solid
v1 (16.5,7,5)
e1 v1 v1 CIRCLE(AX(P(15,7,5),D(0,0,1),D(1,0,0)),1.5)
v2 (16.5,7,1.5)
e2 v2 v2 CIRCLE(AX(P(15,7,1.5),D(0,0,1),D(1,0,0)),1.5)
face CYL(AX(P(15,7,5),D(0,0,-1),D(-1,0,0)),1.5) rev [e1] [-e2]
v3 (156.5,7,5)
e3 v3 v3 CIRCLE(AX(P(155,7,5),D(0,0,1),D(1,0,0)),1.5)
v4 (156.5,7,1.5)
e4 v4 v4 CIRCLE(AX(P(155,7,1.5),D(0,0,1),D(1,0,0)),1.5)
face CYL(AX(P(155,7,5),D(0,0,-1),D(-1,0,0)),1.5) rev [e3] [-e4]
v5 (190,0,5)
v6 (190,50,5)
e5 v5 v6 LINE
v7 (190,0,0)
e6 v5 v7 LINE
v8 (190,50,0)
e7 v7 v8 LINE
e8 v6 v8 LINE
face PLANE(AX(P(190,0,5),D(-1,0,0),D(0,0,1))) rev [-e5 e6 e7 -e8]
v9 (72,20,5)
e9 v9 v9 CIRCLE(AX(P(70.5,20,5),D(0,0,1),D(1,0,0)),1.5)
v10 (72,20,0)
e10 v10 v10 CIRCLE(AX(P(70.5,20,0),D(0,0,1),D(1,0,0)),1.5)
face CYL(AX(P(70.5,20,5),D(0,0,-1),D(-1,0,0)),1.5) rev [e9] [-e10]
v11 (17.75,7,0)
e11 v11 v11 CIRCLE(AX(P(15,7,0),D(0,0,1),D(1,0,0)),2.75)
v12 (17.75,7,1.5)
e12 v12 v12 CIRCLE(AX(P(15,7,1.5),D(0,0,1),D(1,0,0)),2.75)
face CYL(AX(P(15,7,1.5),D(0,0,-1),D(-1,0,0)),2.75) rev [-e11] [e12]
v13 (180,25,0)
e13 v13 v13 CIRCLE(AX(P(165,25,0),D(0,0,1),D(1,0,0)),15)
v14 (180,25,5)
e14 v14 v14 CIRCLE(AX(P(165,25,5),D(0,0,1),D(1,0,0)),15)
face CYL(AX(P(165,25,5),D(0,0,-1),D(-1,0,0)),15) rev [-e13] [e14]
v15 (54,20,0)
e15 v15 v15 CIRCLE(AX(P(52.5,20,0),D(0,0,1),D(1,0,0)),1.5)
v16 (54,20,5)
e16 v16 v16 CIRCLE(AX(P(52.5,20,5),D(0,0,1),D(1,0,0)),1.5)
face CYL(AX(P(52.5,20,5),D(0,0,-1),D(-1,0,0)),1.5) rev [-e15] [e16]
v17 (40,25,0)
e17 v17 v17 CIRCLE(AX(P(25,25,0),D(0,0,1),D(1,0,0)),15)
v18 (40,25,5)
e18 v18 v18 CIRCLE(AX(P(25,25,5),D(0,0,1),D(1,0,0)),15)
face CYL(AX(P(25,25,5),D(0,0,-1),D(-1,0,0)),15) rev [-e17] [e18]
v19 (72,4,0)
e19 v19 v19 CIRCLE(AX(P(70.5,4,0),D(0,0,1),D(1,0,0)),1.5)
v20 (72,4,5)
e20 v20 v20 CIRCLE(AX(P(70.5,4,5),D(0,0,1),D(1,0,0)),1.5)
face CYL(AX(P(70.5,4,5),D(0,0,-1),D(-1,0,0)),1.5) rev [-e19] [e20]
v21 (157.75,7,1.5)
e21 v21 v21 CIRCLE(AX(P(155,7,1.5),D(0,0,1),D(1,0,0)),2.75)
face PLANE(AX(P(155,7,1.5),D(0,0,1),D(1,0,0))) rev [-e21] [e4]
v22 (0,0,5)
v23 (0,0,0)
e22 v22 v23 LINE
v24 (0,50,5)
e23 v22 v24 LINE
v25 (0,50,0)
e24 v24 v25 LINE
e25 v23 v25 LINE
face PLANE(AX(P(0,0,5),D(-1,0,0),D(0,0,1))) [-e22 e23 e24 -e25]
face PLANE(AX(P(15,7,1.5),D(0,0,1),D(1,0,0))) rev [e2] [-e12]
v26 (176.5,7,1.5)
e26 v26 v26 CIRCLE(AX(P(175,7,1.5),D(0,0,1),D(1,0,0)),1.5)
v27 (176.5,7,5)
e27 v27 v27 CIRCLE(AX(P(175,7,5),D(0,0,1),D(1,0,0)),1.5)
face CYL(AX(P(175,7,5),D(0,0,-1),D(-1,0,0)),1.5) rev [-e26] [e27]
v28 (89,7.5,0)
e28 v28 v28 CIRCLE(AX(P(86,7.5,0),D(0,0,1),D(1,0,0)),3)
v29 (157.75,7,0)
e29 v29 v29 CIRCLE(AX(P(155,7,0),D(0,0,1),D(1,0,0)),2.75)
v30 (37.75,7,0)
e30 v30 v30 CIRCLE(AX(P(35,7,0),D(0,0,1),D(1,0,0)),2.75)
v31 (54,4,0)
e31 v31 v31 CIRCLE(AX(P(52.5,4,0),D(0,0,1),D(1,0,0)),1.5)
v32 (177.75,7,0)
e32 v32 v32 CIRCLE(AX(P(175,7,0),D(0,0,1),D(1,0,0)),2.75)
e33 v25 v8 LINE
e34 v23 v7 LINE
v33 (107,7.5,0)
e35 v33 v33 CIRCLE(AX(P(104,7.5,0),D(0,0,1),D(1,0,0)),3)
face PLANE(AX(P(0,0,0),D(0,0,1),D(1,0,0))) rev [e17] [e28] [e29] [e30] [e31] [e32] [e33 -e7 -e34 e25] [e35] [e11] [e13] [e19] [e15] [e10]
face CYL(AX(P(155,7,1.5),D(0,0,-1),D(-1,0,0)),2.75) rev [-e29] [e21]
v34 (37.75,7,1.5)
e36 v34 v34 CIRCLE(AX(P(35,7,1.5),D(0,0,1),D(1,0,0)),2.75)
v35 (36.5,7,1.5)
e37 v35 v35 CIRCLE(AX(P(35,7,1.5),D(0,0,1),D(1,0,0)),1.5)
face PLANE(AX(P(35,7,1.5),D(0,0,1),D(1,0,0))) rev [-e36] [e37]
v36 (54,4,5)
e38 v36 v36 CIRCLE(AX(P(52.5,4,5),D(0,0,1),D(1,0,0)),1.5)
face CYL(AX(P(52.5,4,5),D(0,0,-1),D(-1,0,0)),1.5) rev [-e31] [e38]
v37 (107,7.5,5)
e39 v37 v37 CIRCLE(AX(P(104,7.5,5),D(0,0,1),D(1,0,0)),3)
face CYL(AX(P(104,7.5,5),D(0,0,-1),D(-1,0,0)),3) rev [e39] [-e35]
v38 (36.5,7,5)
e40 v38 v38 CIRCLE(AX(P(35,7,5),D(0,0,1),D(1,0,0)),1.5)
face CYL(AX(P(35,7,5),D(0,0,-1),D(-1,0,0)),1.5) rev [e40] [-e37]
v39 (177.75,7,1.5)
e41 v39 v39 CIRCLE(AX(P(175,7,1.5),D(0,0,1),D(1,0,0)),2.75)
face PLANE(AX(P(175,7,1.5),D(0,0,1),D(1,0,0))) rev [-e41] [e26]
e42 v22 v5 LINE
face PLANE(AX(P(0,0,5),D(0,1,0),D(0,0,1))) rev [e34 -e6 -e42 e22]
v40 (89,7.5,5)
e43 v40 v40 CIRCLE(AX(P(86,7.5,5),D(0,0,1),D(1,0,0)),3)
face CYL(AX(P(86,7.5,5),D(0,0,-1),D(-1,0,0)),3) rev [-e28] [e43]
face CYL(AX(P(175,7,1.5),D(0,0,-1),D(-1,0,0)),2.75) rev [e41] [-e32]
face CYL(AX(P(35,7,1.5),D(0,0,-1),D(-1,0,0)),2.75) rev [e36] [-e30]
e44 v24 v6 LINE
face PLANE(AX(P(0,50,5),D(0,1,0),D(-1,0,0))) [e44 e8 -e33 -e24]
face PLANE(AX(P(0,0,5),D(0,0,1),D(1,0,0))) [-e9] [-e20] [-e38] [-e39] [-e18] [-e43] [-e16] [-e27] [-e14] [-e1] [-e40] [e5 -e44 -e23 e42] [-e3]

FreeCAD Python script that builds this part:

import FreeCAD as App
import Part
import Sketcher
from FreeCAD import Vector


def add_polygon(sketch, points):
    """Adds a closed chain of lines whose ends are joined by coincident constraints."""
    first, n = sketch.GeometryCount, len(points)
    for a, b in zip(points, points[1:] + points[:1]):
        sketch.addGeometry(Part.LineSegment(App.Vector(*a, 0), App.Vector(*b, 0)), False)
    for i in range(n):
        sketch.addConstraint(Sketcher.Constraint("Coincident", first + i, 2, first + (i + 1) % n, 1))

doc = App.newDocument("Part")
body = doc.addObject("PartDesign::Body", "Body")

sketch1 = body.newObject("Sketcher::SketchObject", "Sketch")
sketch1.AttachmentSupport = (doc.getObject("XY_Plane"), [""])
sketch1.MapMode = "FlatFace"
add_polygon(sketch1, [(0, 50), (0, 0), (190, 0), (190, 50)])
sketch1.addGeometry(Part.Circle(Vector(15, 7, 0), Vector(0, 0, 1), 1.5), False)
sketch1.addGeometry(Part.Circle(Vector(35, 7, 0), Vector(0, 0, 1), 1.5), False)
sketch1.addGeometry(Part.Circle(Vector(52.5, 4, 0), Vector(0, 0, 1), 1.5), False)
sketch1.addGeometry(Part.Circle(Vector(70.5, 4, 0), Vector(0, 0, 1), 1.5), False)
sketch1.addGeometry(Part.Circle(Vector(86, 7.5, 0), Vector(0, 0, 1), 3), False)
sketch1.addGeometry(Part.Circle(Vector(52.5, 20, 0), Vector(0, 0, 1), 1.5), False)
sketch1.addGeometry(Part.Circle(Vector(70.5, 20, 0), Vector(0, 0, 1), 1.5), False)
sketch1.addGeometry(Part.Circle(Vector(104, 7.5, 0), Vector(0, 0, 1), 3), False)
sketch1.addGeometry(Part.Circle(Vector(155, 7, 0), Vector(0, 0, 1), 1.5), False)
sketch1.addGeometry(Part.Circle(Vector(175, 7, 0), Vector(0, 0, 1), 1.5), False)
sketch1.addGeometry(Part.Circle(Vector(25, 25, 0), Vector(0, 0, 1), 15), False)
sketch1.addGeometry(Part.Circle(Vector(165, 25, 0), Vector(0, 0, 1), 15), False)
sketch1.addConstraint([
    Sketcher.Constraint("Vertical", 0),
    Sketcher.Constraint("Horizontal", 1),
    Sketcher.Constraint("Vertical", 2),
    Sketcher.Constraint("Horizontal", 3),
    Sketcher.Constraint("Coincident", 0, 2, -1, 1),
    Sketcher.Constraint("Equal", 4, 5),
    Sketcher.Constraint("Equal", 5, 6),
    Sketcher.Constraint("Equal", 6, 7),
    Sketcher.Constraint("Equal", 7, 9),
    Sketcher.Constraint("Equal", 9, 10),
    Sketcher.Constraint("Equal", 8, 11),
    Sketcher.Constraint("Equal", 10, 12),
    Sketcher.Constraint("Equal", 12, 13),
    Sketcher.Constraint("Equal", 14, 15),
    Sketcher.Constraint("Horizontal", 4, 3, 5, 3),
    Sketcher.Constraint("Horizontal", 6, 3, 7, 3),
    Sketcher.Constraint("Horizontal", 9, 3, 10, 3),
    Sketcher.Constraint("Horizontal", 8, 3, 11, 3),
    Sketcher.Constraint("Horizontal", 5, 3, 12, 3),
    Sketcher.Constraint("Horizontal", 12, 3, 13, 3),
    Sketcher.Constraint("Horizontal", 14, 3, 15, 3),
    Sketcher.Constraint("Vertical", 6, 3, 9, 3),
    Sketcher.Constraint("Vertical", 7, 3, 10, 3),
    Sketcher.Constraint("Diameter", 4, 3.0),
    Sketcher.Constraint("Diameter", 8, 6.0),
    Sketcher.Constraint("Diameter", 14, 30.0),
    Sketcher.Constraint("DistanceX", 1, 1, 1, 2, 190.0),
    Sketcher.Constraint("DistanceY", 0, 2, 0, 1, 50.0),
    Sketcher.Constraint("DistanceX", -1, 1, 4, 3, 15.0),
    Sketcher.Constraint("DistanceY", -1, 1, 4, 3, 7.0),
    Sketcher.Constraint("DistanceX", -1, 1, 5, 3, 35.0),
    Sketcher.Constraint("DistanceY", -1, 1, 6, 3, 4.0),
    Sketcher.Constraint("DistanceX", -1, 1, 8, 3, 86.0),
    Sketcher.Constraint("DistanceY", -1, 1, 9, 3, 20.0),
    Sketcher.Constraint("DistanceX", -1, 1, 11, 3, 104.0),
    Sketcher.Constraint("DistanceX", -1, 1, 12, 3, 155.0),
    Sketcher.Constraint("DistanceX", -1, 1, 13, 3, 175.0),
    Sketcher.Constraint("DistanceX", -1, 1, 14, 3, 25.0),
    Sketcher.Constraint("DistanceY", -1, 1, 14, 3, 25.0),
    Sketcher.Constraint("DistanceX", -1, 1, 15, 3, 165.0),
    Sketcher.Constraint("DistanceX", 6, 3, 7, 3, 18.0),
    Sketcher.Constraint("DistanceX", -1, 1, 6, 3, 52.5),
    Sketcher.Constraint("DistanceY", -1, 1, 8, 3, 7.5),
])
pad1 = body.newObject("PartDesign::Pad", "Pad")
pad1.Profile = sketch1
pad1.Length = 5

sketch2 = body.newObject("Sketcher::SketchObject", "Sketch001")
sketch2.AttachmentSupport = (doc.getObject("XY_Plane"), [""])
sketch2.MapMode = "FlatFace"
sketch2.addGeometry([
    Part.Circle(Vector(15, 7, 0), Vector(0, 0, 1), 2.8),
    Part.Circle(Vector(35, 7, 0), Vector(0, 0, 1), 2.8),
    Part.Circle(Vector(155, 7, 0), Vector(0, 0, 1), 2.8),
    Part.Circle(Vector(175, 7, 0), Vector(0, 0, 1), 2.8),
], False)
sketch2.addConstraint([
    Sketcher.Constraint("Equal", 0, 1),
    Sketcher.Constraint("Equal", 1, 2),
    Sketcher.Constraint("Equal", 2, 3),
    Sketcher.Constraint("Horizontal", 0, 3, 1, 3),
    Sketcher.Constraint("Horizontal", 1, 3, 2, 3),
    Sketcher.Constraint("Horizontal", 2, 3, 3, 3),
    Sketcher.Constraint("Diameter", 0, 5.5),
    Sketcher.Constraint("DistanceX", -1, 1, 0, 3, 15.0),
    Sketcher.Constraint("DistanceY", -1, 1, 0, 3, 7.0),
    Sketcher.Constraint("DistanceX", -1, 1, 1, 3, 35.0),
    Sketcher.Constraint("DistanceX", -1, 1, 2, 3, 155.0),
    Sketcher.Constraint("DistanceX", -1, 1, 3, 3, 175.0),
])
pocket1 = body.newObject("PartDesign::Pocket", "Pocket")
pocket1.Profile = sketch2
pocket1.Length = 1.5
pocket1.Reversed = True

doc.recompute()
